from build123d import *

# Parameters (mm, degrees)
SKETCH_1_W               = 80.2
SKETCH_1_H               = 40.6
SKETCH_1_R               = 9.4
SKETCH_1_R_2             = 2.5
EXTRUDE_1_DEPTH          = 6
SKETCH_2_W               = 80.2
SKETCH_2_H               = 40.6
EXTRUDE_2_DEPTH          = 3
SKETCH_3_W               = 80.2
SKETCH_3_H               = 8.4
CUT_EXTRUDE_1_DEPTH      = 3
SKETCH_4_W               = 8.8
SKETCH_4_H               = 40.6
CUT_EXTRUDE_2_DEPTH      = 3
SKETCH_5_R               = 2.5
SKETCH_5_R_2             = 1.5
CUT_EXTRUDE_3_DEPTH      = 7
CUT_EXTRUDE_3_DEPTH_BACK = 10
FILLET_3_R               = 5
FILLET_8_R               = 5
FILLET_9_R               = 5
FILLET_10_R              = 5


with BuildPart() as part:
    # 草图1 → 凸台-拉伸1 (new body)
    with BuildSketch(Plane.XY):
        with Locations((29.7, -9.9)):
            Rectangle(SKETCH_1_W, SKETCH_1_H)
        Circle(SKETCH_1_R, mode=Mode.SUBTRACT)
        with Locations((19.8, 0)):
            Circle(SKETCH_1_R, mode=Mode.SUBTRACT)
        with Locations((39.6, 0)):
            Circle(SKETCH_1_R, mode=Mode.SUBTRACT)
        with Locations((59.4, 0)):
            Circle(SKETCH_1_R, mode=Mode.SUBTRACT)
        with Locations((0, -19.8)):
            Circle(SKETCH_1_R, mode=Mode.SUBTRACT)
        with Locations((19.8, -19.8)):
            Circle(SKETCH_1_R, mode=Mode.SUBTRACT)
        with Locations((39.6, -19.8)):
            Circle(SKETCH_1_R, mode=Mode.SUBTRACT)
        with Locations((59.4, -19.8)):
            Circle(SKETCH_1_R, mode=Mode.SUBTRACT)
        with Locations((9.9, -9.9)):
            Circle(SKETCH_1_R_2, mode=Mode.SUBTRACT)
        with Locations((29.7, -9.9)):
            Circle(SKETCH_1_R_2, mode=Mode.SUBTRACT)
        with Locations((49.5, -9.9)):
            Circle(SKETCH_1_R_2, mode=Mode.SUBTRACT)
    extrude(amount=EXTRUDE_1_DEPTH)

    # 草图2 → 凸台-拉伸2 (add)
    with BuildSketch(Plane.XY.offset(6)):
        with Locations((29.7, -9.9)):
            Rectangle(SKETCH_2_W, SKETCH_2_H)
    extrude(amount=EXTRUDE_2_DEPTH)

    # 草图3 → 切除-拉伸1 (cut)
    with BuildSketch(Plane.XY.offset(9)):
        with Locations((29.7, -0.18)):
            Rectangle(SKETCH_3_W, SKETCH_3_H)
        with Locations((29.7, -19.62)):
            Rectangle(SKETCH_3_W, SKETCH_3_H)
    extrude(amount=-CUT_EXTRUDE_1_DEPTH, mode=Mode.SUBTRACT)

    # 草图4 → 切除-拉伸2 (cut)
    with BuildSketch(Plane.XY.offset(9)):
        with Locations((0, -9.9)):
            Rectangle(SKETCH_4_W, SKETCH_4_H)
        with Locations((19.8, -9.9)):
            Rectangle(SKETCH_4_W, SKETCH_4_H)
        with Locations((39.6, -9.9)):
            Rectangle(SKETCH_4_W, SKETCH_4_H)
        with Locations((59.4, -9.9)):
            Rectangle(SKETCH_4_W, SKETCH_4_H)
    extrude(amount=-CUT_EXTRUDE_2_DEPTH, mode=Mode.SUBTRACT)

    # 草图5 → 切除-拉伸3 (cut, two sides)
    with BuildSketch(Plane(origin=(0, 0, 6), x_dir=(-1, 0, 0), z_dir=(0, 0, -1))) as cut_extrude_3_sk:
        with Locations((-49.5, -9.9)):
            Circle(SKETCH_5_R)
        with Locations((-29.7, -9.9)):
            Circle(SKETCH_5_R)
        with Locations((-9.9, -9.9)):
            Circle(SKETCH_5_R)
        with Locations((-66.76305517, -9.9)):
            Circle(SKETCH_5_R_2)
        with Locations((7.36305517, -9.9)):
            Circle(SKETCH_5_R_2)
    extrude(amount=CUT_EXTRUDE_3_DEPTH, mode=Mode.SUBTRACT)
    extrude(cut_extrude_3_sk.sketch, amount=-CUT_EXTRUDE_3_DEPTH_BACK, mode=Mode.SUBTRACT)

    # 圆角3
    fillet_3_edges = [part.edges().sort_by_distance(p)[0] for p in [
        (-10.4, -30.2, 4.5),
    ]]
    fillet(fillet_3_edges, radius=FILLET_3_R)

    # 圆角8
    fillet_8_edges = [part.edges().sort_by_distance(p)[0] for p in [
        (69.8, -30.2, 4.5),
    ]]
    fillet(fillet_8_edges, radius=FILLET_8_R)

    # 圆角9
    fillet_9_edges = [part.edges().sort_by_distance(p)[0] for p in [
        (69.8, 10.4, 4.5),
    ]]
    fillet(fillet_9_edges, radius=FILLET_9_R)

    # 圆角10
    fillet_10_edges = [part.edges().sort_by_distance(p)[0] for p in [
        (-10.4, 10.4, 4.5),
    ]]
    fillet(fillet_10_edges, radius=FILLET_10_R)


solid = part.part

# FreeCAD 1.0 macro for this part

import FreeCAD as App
import Part
import Sketcher

V = App.Vector
Q = App.Units.Quantity


def edges_at(feature, points):
    """Names of the edges that pass closest to the given points."""
    edges = feature.Shape.Edges
    near = lambda p: min(range(len(edges)), key=lambda i: edges[i].distToShape(Part.Vertex(*p))[0])
    return sorted({f"Edge{near(p) + 1}" for p in points})


def add_polygon(sketch, points):
    """Adds a closed chain of lines whose ends are joined by coincident constraints."""
    first, n = sketch.GeometryCount, len(points)
    for a, b in zip(points, points[1:] + points[:1]):
        sketch.addGeometry(Part.LineSegment(App.Vector(*a, 0), App.Vector(*b, 0)), False)
    for i in range(n):
        sketch.addConstraint(Sketcher.Constraint("Coincident", first + i, 2, first + (i + 1) % n, 1))

doc = App.newDocument("Part")
body = doc.addObject("PartDesign::Body", "Body")

# Sketch on XY plane
sketch1 = doc.addObject("Sketcher::SketchObject", "Sketch")
body.addObject(sketch1)
sketch1.AttachmentSupport = (doc.XY_Plane, [""])
sketch1.MapMode = "FlatFace"
add_polygon(sketch1, [(-10.4, 10.4), (-10.4, -30.2), (69.8, -30.2), (69.8, 10.4)])  # lines 0-3
sketch1.addGeometry(Part.Circle(V(0, -19.8, 0), V(0, 0, 1), 9.4), False)  # 4
sketch1.addGeometry(Part.Circle(V(19.8, -19.8, 0), V(0, 0, 1), 9.4), False)  # 5
sketch1.addGeometry(Part.Circle(V(39.6, -19.8, 0), V(0, 0, 1), 9.4), False)  # 6
sketch1.addGeometry(Part.Circle(V(59.4, -19.8, 0), V(0, 0, 1), 9.4), False)  # 7
sketch1.addGeometry(Part.Circle(V(9.9, -9.9, 0), V(0, 0, 1), 2.5), False)  # 8
sketch1.addGeometry(Part.Circle(V(0, 0, 0), V(0, 0, 1), 9.4), False)  # 9
sketch1.addGeometry(Part.Circle(V(19.8, 0, 0), V(0, 0, 1), 9.4), False)  # 10
sketch1.addGeometry(Part.Circle(V(29.7, -9.9, 0), V(0, 0, 1), 2.5), False)  # 11
sketch1.addGeometry(Part.Circle(V(49.5, -9.9, 0), V(0, 0, 1), 2.5), False)  # 12
sketch1.addGeometry(Part.Circle(V(39.6, 0, 0), V(0, 0, 1), 9.4), False)  # 13
sketch1.addGeometry(Part.Circle(V(59.4, 0, 0), V(0, 0, 1), 9.4), False)  # 14
sketch1.addConstraint(Sketcher.Constraint("Vertical", 0))
sketch1.addConstraint(Sketcher.Constraint("Horizontal", 1))
sketch1.addConstraint(Sketcher.Constraint("Vertical", 2))
sketch1.addConstraint(Sketcher.Constraint("Horizontal", 3))
sketch1.addConstraint(Sketcher.Constraint("Coincident", 9, 3, -1, 1))
sketch1.addConstraint(Sketcher.Constraint("Equal", 4, 5))
sketch1.addConstraint(Sketcher.Constraint("Equal", 5, 6))
sketch1.addConstraint(Sketcher.Constraint("Equal", 6, 7))
sketch1.addConstraint(Sketcher.Constraint("Equal", 7, 9))
sketch1.addConstraint(Sketcher.Constraint("Equal", 9, 10))
sketch1.addConstraint(Sketcher.Constraint("Equal", 8, 11))
sketch1.addConstraint(Sketcher.Constraint("Equal", 11, 12))
sketch1.addConstraint(Sketcher.Constraint("Equal", 10, 13))
sketch1.addConstraint(Sketcher.Constraint("Equal", 13, 14))
sketch1.addConstraint(Sketcher.Constraint("PointOnObject", 4, 3, -2))
sketch1.addConstraint(Sketcher.Constraint("PointOnObject", 10, 3, -1))
sketch1.addConstraint(Sketcher.Constraint("PointOnObject", 13, 3, -1))
sketch1.addConstraint(Sketcher.Constraint("PointOnObject", 14, 3, -1))
sketch1.addConstraint(Sketcher.Constraint("Horizontal", 4, 3, 5, 3))
sketch1.addConstraint(Sketcher.Constraint("Horizontal", 5, 3, 6, 3))
sketch1.addConstraint(Sketcher.Constraint("Horizontal", 6, 3, 7, 3))
sketch1.addConstraint(Sketcher.Constraint("Horizontal", 8, 3, 11, 3))
sketch1.addConstraint(Sketcher.Constraint("Horizontal", 11, 3, 12, 3))
sketch1.addConstraint(Sketcher.Constraint("Vertical", 5, 3, 10, 3))
sketch1.addConstraint(Sketcher.Constraint("Vertical", 6, 3, 13, 3))
sketch1.addConstraint(Sketcher.Constraint("Vertical", 7, 3, 14, 3))
sketch1.addConstraint(Sketcher.Constraint("Diameter", 8, Q("5 mm")))
sketch1.addConstraint(Sketcher.Constraint("Diameter", 4, Q("18.8 mm")))
sketch1.addConstraint(Sketcher.Constraint("DistanceX", 1, 1, 1, 2, Q("80.2 mm")))
sketch1.addConstraint(Sketcher.Constraint("DistanceY", 0, 2, 0, 1, Q("40.6 mm")))
sketch1.addConstraint(Sketcher.Constraint("DistanceY", 4, 3, -1, 1, Q("19.8 mm")))
sketch1.addConstraint(Sketcher.Constraint("DistanceX", -1, 1, 5, 3, Q("19.8 mm")))
sketch1.addConstraint(Sketcher.Constraint("DistanceX", -1, 1, 6, 3, Q("39.6 mm")))
sketch1.addConstraint(Sketcher.Constraint("DistanceX", -1, 1, 7, 3, Q("59.4 mm")))
sketch1.addConstraint(Sketcher.Constraint("DistanceX", -1, 1, 8, 3, Q("9.9 mm")))
sketch1.addConstraint(Sketcher.Constraint("DistanceY", 8, 3, -1, 1, Q("9.9 mm")))
sketch1.addConstraint(Sketcher.Constraint("DistanceX", -1, 1, 11, 3, Q("29.7 mm")))
sketch1.addConstraint(Sketcher.Constraint("DistanceX", -1, 1, 12, 3, Q("49.5 mm")))
sketch1.addConstraint(Sketcher.Constraint("DistanceX", 0, 2, -1, 1, Q("10.4 mm")))
sketch1.addConstraint(Sketcher.Constraint("DistanceY", 0, 2, -1, 1, Q("30.2 mm")))
pad1 = doc.addObject("PartDesign::Pad", "Pad")
body.addObject(pad1)
pad1.Profile = sketch1
pad1.Length = 6

# Sketch on XY plane
sketch2 = doc.addObject("Sketcher::SketchObject", "Sketch001")
body.addObject(sketch2)
sketch2.AttachmentSupport = (doc.XY_Plane, [""])
sketch2.MapMode = "FlatFace"
sketch2.AttachmentOffset = App.Placement(V(0, 0, 6), App.Rotation())
add_polygon(sketch2, [(-10.4, 10.4), (-10.4, -30.2), (69.8, -30.2), (69.8, 10.4)])  # lines 0-3
sketch2.addConstraint(Sketcher.Constraint("Vertical", 0))
sketch2.addConstraint(Sketcher.Constraint("Horizontal", 1))
sketch2.addConstraint(Sketcher.Constraint("Vertical", 2))
sketch2.addConstraint(Sketcher.Constraint("Horizontal", 3))
sketch2.addConstraint(Sketcher.Constraint("DistanceX", 1, 1, 1, 2, Q("80.2 mm")))
sketch2.addConstraint(Sketcher.Constraint("DistanceY", 0, 2, 0, 1, Q("40.6 mm")))
sketch2.addConstraint(Sketcher.Constraint("DistanceX", 0, 2, -1, 1, Q("10.4 mm")))
sketch2.addConstraint(Sketcher.Constraint("DistanceY", 0, 2, -1, 1, Q("30.2 mm")))
pad2 = doc.addObject("PartDesign::Pad", "Pad001")
body.addObject(pad2)
pad2.Profile = sketch2
pad2.Length = 3

# Sketch on XY plane
sketch3 = doc.addObject("Sketcher::SketchObject", "Sketch002")
body.addObject(sketch3)
sketch3.AttachmentSupport = (doc.XY_Plane, [""])
sketch3.MapMode = "FlatFace"
sketch3.AttachmentOffset = App.Placement(V(0, 0, 9), App.Rotation())
add_polygon(sketch3, [(-10.4, 4.02), (-10.4, -4.38), (69.8, -4.38), (69.8, 4.02)])  # lines 0-3
add_polygon(sketch3, [(-10.4, -15.42), (-10.4, -23.82), (69.8, -23.82), (69.8, -15.42)])  # lines 4-7
sketch3.addConstraint(Sketcher.Constraint("Vertical", 0))
sketch3.addConstraint(Sketcher.Constraint("Horizontal", 1))
sketch3.addConstraint(Sketcher.Constraint("Vertical", 2))
sketch3.addConstraint(Sketcher.Constraint("Horizontal", 3))
sketch3.addConstraint(Sketcher.Constraint("Vertical", 4))
sketch3.addConstraint(Sketcher.Constraint("Horizontal", 5))
sketch3.addConstraint(Sketcher.Constraint("Vertical", 6))
sketch3.addConstraint(Sketcher.Constraint("Horizontal", 7))
sketch3.addConstraint(Sketcher.Constraint("Vertical", 3, 2, 4, 2))
sketch3.addConstraint(Sketcher.Constraint("Vertical", 2, 2, 5, 2))
sketch3.addConstraint(Sketcher.Constraint("Equal", 2, 4))
sketch3.addConstraint(Sketcher.Constraint("DistanceX", 1, 1, 1, 2, Q("80.2 mm")))
sketch3.addConstraint(Sketcher.Constraint("DistanceY", 0, 2, 0, 1, Q("8.4 mm")))
sketch3.addConstraint(Sketcher.Constraint("DistanceX", 0, 2, -1, 1, Q("10.4 mm")))
sketch3.addConstraint(Sketcher.Constraint("DistanceY", 0, 2, -1, 1, Q("4.38 mm")))
sketch3.addConstraint(Sketcher.Constraint("DistanceY", 4, 2, -1, 1, Q("23.82 mm")))
pocket1 = doc.addObject("PartDesign::Pocket", "Pocket")
body.addObject(pocket1)
pocket1.Profile = sketch3
pocket1.Length = 3

# Sketch on XY plane
sketch4 = doc.addObject("Sketcher::SketchObject", "Sketch003")
body.addObject(sketch4)
sketch4.AttachmentSupport = (doc.XY_Plane, [""])
sketch4.MapMode = "FlatFace"
sketch4.AttachmentOffset = App.Placement(V(0, 0, 9), App.Rotation())
add_polygon(sketch4, [(-4.4, 10.4), (-4.4, -30.2), (4.4, -30.2), (4.4, 10.4)])  # lines 0-3
add_polygon(sketch4, [(15.4, 10.4), (15.4, -30.2), (24.2, -30.2), (24.2, 10.4)])  # lines 4-7
add_polygon(sketch4, [(35.2, 10.4), (35.2, -30.2), (44, -30.2), (44, 10.4)])  # lines 8-11
add_polygon(sketch4, [(55, 10.4), (55, -30.2), (63.8, -30.2), (63.8, 10.4)])  # lines 12-15
sketch4.addConstraint(Sketcher.Constraint("Vertical", 0))
sketch4.addConstraint(Sketcher.Constraint("Horizontal", 1))
sketch4.addConstraint(Sketcher.Constraint("Vertical", 2))
sketch4.addConstraint(Sketcher.Constraint("Horizontal", 3))
sketch4.addConstraint(Sketcher.Constraint("Vertical", 4))
sketch4.addConstraint(Sketcher.Constraint("Horizontal", 5))
sketch4.addConstraint(Sketcher.Constraint("Vertical", 6))
sketch4.addConstraint(Sketcher.Constraint("Horizontal", 7))
sketch4.addConstraint(Sketcher.Constraint("Vertical", 8))
sketch4.addConstraint(Sketcher.Constraint("Horizontal", 9))
sketch4.addConstraint(Sketcher.Constraint("Vertical", 10))
sketch4.addConstraint(Sketcher.Constraint("Horizontal", 11))
sketch4.addConstraint(Sketcher.Constraint("Vertical", 12))
sketch4.addConstraint(Sketcher.Constraint("Horizontal", 13))
sketch4.addConstraint(Sketcher.Constraint("Vertical", 14))
sketch4.addConstraint(Sketcher.Constraint("Horizontal", 15))
sketch4.addConstraint(Sketcher.Constraint("Horizontal", 1, 2, 4, 2))
sketch4.addConstraint(Sketcher.Constraint("Horizontal", 3, 2, 6, 2))
sketch4.addConstraint(Sketcher.Constraint("Horizontal", 5, 2, 8, 2))
sketch4.addConstraint(Sketcher.Constraint("Horizontal", 7, 2, 10, 2))
sketch4.addConstraint(Sketcher.Constraint("Horizontal", 9, 2, 12, 2))
sketch4.addConstraint(Sketcher.Constraint("Horizontal", 11, 2, 14, 2))
sketch4.addConstraint(Sketcher.Constraint("Equal", 3, 5))
sketch4.addConstraint(Sketcher.Constraint("Equal", 7, 9))
sketch4.addConstraint(Sketcher.Constraint("Equal", 11, 13))
sketch4.addConstraint(Sketcher.Constraint("DistanceX", 1, 1, 1, 2, Q("8.8 mm")))
sketch4.addConstraint(Sketcher.Constraint("DistanceY", 0, 2, 0, 1, Q("40.6 mm")))
sketch4.addConstraint(Sketcher.Constraint("DistanceX", -1, 1, 9, 2, Q("44 mm")))
sketch4.addConstraint(Sketcher.Constraint("DistanceX", -1, 1, 12, 2, Q("55 mm")))
sketch4.addConstraint(Sketcher.Constraint("DistanceX", 1, 2, 4, 2, Q("11 mm")))
sketch4.addConstraint(Sketcher.Constraint("DistanceX", 5, 2, 8, 2, Q("11 mm")))
sketch4.addConstraint(Sketcher.Constraint("DistanceY", 0, 2, -1, 1, Q("30.2 mm")))
pocket2 = doc.addObject("PartDesign::Pocket", "Pocket001")
body.addObject(pocket2)
pocket2.Profile = sketch4
pocket2.Length = 3

# Sketch on XY plane
sketch5 = doc.addObject("Sketcher::SketchObject", "Sketch004")
body.addObject(sketch5)
sketch5.AttachmentSupport = (doc.XY_Plane, [""])
sketch5.MapMode = "FlatFace"
sketch5.AttachmentOffset = App.Placement(V(0, 0, 6), App.Rotation())
sketch5.addGeometry(Part.Circle(V(49.5, -9.9, 0), V(0, 0, 1), 2.5), False)
sketch5.addGeometry(Part.Circle(V(29.7, -9.9, 0), V(0, 0, 1), 2.5), False)
sketch5.addGeometry(Part.Circle(V(9.9, -9.9, 0), V(0, 0, 1), 2.5), False)
sketch5.addGeometry(Part.Circle(V(66.763055, -9.9, 0), V(0, 0, 1), 1.5), False)
sketch5.addGeometry(Part.Circle(V(-7.363055, -9.9, 0), V(0, 0, 1), 1.5), False)
sketch5.addConstraint(Sketcher.Constraint("Equal", 0, 1))
sketch5.addConstraint(Sketcher.Constraint("Equal", 1, 2))
sketch5.addConstraint(Sketcher.Constraint("Equal", 3, 4))
sketch5.addConstraint(Sketcher.Constraint("Horizontal", 0, 3, 1, 3))
sketch5.addConstraint(Sketcher.Constraint("Horizontal", 1, 3, 2, 3))
sketch5.addConstraint(Sketcher.Constraint("Horizontal", 2, 3, 3, 3))
sketch5.addConstraint(Sketcher.Constraint("Horizontal", 3, 3, 4, 3))
sketch5.addConstraint(Sketcher.Constraint("Diameter", 0, Q("5 mm")))
sketch5.addConstraint(Sketcher.Constraint("Diameter", 3, Q("3 mm")))
sketch5.addConstraint(Sketcher.Constraint("DistanceX", -1, 1, 0, 3, Q("49.5 mm")))
sketch5.addConstraint(Sketcher.Constraint("DistanceY", 0, 3, -1, 1, Q("9.9 mm")))
sketch5.addConstraint(Sketcher.Constraint("DistanceX", -1, 1, 1, 3, Q("29.7 mm")))
sketch5.addConstraint(Sketcher.Constraint("DistanceX", -1, 1, 2, 3, Q("9.9 mm")))
sketch5.addConstraint(Sketcher.Constraint("DistanceX", 4, 3, 3, 3, Q("74.12611 mm")))
sketch5.addConstraint(Sketcher.Constraint("DistanceX", -1, 1, 3, 3, Q("66.763055 mm")))
pocket3 = doc.addObject("PartDesign::Pocket", "Pocket002")
body.addObject(pocket3)
pocket3.Profile = sketch5
pocket3.Type = "ThroughAll"
pocket3.Midplane = True
doc.recompute()

fillet = doc.addObject("PartDesign::Fillet", "Fillet")
body.addObject(fillet)
fillet.Base = (pocket3, edges_at(pocket3, [(-10.4, -30.2, 4.5)]))
fillet.Radius = 5
doc.recompute()

fillet2 = doc.addObject("PartDesign::Fillet", "Fillet001")
body.addObject(fillet2)
fillet2.Base = (fillet, edges_at(fillet, [(69.8, -30.2, 4.5)]))
fillet2.Radius = 5
doc.recompute()

fillet3 = doc.addObject("PartDesign::Fillet", "Fillet002")
body.addObject(fillet3)
fillet3.Base = (fillet2, edges_at(fillet2, [(69.8, 10.4, 4.5)]))
fillet3.Radius = 5
doc.recompute()

fillet4 = doc.addObject("PartDesign::Fillet", "Fillet003")
body.addObject(fillet4)
fillet4.Base = (fillet3, edges_at(fillet3, [(-10.4, 10.4, 4.5)]))
fillet4.Radius = 5

doc.recompute()
